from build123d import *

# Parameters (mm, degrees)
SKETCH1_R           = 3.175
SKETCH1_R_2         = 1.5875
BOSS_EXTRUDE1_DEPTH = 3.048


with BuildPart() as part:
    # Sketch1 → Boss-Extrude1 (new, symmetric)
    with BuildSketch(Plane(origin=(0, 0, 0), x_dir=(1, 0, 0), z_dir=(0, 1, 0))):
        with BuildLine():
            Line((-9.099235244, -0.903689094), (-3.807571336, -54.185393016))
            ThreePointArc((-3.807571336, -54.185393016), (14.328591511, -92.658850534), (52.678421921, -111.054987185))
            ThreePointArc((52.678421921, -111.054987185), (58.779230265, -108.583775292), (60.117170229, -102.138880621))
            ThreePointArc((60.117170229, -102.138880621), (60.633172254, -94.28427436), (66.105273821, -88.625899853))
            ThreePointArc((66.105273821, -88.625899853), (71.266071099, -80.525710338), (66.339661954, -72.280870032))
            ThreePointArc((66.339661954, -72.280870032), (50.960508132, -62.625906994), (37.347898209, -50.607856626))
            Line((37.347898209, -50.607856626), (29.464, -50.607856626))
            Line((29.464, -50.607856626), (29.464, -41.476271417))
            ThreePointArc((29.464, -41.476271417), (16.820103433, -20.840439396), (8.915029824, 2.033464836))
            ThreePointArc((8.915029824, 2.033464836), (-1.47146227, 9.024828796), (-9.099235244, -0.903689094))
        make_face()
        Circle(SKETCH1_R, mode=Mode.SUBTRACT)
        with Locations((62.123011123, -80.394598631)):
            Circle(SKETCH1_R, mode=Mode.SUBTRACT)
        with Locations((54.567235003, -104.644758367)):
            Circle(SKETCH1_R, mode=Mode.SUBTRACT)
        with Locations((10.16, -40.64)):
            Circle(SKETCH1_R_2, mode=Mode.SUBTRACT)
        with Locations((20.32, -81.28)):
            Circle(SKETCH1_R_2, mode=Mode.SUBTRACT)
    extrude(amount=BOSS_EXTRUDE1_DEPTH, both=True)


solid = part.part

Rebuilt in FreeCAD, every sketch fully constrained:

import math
import FreeCAD as App
import Part
import Sketcher
from FreeCAD import Vector
Q = App.Units.Quantity

doc = App.newDocument("Part")
body = doc.addObject("PartDesign::Body", "Body")

sketch1 = body.newObject("Sketcher::SketchObject", "Sketch")
sketch1.AttachmentSupport = (doc.getObject("XZ_Plane"), [""])
sketch1.MapMode = "FlatFace"
sketch1.addGeometry([
    Part.LineSegment(Vector(-9.099235, 0.903689, 0), Vector(-3.807571, 54.185393, 0)),
    Part.ArcOfCircle(Part.Circle(Vector(59.381562, 47.909774, 0), Vector(0, 0, 1), 63.5), math.radians(96.059504), math.radians(174.328278)),
    Part.ArcOfCircle(Part.Circle(Vector(53.415767, 104.109014, 0), Vector(0, 0, 1), 6.985), math.radians(-16.382712), math.radians(96.059504)),
    Part.ArcOfCircle(Part.Circle(Vector(71.083102, 98.915026, 0), Vector(0, 0, 1), 11.43), math.radians(163.617288), math.radians(244.182533)),
    Part.ArcOfCircle(Part.Circle(Vector(62.123011, 80.394599, 0), Vector(0, 0, 1), 9.144), math.radians(-62.5394), math.radians(64.182533)),
    Part.ArcOfCircle(Part.Circle(Vector(117.876505, -26.886924, 0), Vector(0, 0, 1), 111.76), math.radians(117.4606), math.radians(136.099863)),
    Part.LineSegment(Vector(37.347898, 50.607857, 0), Vector(29.464, 50.607857, 0)),
    Part.LineSegment(Vector(29.464, 50.607857, 0), Vector(29.464, 41.476271, 0)),
    Part.ArcOfCircle(Part.Circle(Vector(117.876505, -26.886924, 0), Vector(0, 0, 1), 111.76), math.radians(142.287731), math.radians(167.150997)),
    Part.ArcOfCircle(Part.Circle(Vector(0, 0, 0), Vector(0, 0, 1), 9.144), math.radians(174.328278), math.radians(347.150997)),
    Part.Circle(Vector(20.32, 81.28, 0), Vector(0, 0, 1), 1.5875),
    Part.Circle(Vector(54.567235, 104.644758, 0), Vector(0, 0, 1), 3.175),
    Part.Circle(Vector(62.123011, 80.394599, 0), Vector(0, 0, 1), 3.175),
    Part.Circle(Vector(10.16, 40.64, 0), Vector(0, 0, 1), 1.5875),
    Part.Circle(Vector(0, 0, 0), Vector(0, 0, 1), 3.175),
], False)
sketch1.addConstraint([
    Sketcher.Constraint("Tangent", 0, 2, 1, 2),
    Sketcher.Constraint("Tangent", 1, 1, 2, 2),
    Sketcher.Constraint("Tangent", 2, 1, 3, 1),
    Sketcher.Constraint("Tangent", 3, 2, 4, 2),
    Sketcher.Constraint("Tangent", 4, 1, 5, 1),
    Sketcher.Constraint("Coincident", 5, 2, 6, 1),
    Sketcher.Constraint("Coincident", 6, 2, 7, 1),
    Sketcher.Constraint("Coincident", 7, 2, 8, 1),
    Sketcher.Constraint("Tangent", 8, 2, 9, 2),
    Sketcher.Constraint("Tangent", 9, 1, 0, 1),
    Sketcher.Constraint("Horizontal", 6),
    Sketcher.Constraint("Vertical", 7),
    Sketcher.Constraint("Coincident", 9, 3, -1, 1),
    Sketcher.Constraint("Coincident", 14, 3, -1, 1),
    Sketcher.Constraint("Coincident", 8, 3, 5, 3),
    Sketcher.Constraint("Coincident", 12, 3, 4, 3),
    Sketcher.Constraint("Equal", 5, 8),
    Sketcher.Constraint("Equal", 4, 9),
    Sketcher.Constraint("Equal", 11, 12),
    Sketcher.Constraint("Equal", 10, 13),
    Sketcher.Constraint("Equal", 12, 14),
    Sketcher.Constraint("Radius", 1, Q("2.5 in")),
    Sketcher.Constraint("Radius", 5, Q("4.4 in")),
    Sketcher.Constraint("Diameter", 11, Q("0.25 in")),
    Sketcher.Constraint("Radius", 3, Q("0.45 in")),
    Sketcher.Constraint("Radius", 4, Q("0.36 in")),
    Sketcher.Constraint("Diameter", 10, Q("0.125 in")),
    Sketcher.Constraint("Radius", 2, Q("0.275 in")),
    Sketcher.Constraint("DistanceX", -1, 1, 10, 3, Q("0.8 in")),
    Sketcher.Constraint("DistanceY", -1, 1, 10, 3, Q("3.2 in")),
    Sketcher.Constraint("DistanceX", -1, 1, 13, 3, Q("0.4 in")),
    Sketcher.Constraint("DistanceY", -1, 1, 13, 3, Q("1.6 in")),
    Sketcher.Constraint("DistanceX", -1, 1, 6, 2, Q("1.16 in")),
    Sketcher.Constraint("DistanceX", 6, 2, 6, 1, 7.883898),
    Sketcher.Constraint("DistanceY", -1, 1, 4, 3, 80.394599),
    Sketcher.Constraint("DistanceY", -1, 1, 3, 2, 88.6259),
    Sketcher.Constraint("DistanceY", 5, 3, 1, 3, 74.796698),
    Sketcher.Constraint("DistanceX", 1, 3, 4, 1, 6.9581),
    Sketcher.Constraint("Distance", 0, 53.54383),
    Sketcher.Constraint("DistanceY", -1, 1, 11, 3, 104.644758),
    Sketcher.Constraint("DistanceX", 11, 3, 3, 2, 11.538039),
])
pad1 = body.newObject("PartDesign::Pad", "Pad")
pad1.Profile = sketch1
pad1.Length = Q("0.24 in")
pad1.Midplane = True

doc.recompute()
